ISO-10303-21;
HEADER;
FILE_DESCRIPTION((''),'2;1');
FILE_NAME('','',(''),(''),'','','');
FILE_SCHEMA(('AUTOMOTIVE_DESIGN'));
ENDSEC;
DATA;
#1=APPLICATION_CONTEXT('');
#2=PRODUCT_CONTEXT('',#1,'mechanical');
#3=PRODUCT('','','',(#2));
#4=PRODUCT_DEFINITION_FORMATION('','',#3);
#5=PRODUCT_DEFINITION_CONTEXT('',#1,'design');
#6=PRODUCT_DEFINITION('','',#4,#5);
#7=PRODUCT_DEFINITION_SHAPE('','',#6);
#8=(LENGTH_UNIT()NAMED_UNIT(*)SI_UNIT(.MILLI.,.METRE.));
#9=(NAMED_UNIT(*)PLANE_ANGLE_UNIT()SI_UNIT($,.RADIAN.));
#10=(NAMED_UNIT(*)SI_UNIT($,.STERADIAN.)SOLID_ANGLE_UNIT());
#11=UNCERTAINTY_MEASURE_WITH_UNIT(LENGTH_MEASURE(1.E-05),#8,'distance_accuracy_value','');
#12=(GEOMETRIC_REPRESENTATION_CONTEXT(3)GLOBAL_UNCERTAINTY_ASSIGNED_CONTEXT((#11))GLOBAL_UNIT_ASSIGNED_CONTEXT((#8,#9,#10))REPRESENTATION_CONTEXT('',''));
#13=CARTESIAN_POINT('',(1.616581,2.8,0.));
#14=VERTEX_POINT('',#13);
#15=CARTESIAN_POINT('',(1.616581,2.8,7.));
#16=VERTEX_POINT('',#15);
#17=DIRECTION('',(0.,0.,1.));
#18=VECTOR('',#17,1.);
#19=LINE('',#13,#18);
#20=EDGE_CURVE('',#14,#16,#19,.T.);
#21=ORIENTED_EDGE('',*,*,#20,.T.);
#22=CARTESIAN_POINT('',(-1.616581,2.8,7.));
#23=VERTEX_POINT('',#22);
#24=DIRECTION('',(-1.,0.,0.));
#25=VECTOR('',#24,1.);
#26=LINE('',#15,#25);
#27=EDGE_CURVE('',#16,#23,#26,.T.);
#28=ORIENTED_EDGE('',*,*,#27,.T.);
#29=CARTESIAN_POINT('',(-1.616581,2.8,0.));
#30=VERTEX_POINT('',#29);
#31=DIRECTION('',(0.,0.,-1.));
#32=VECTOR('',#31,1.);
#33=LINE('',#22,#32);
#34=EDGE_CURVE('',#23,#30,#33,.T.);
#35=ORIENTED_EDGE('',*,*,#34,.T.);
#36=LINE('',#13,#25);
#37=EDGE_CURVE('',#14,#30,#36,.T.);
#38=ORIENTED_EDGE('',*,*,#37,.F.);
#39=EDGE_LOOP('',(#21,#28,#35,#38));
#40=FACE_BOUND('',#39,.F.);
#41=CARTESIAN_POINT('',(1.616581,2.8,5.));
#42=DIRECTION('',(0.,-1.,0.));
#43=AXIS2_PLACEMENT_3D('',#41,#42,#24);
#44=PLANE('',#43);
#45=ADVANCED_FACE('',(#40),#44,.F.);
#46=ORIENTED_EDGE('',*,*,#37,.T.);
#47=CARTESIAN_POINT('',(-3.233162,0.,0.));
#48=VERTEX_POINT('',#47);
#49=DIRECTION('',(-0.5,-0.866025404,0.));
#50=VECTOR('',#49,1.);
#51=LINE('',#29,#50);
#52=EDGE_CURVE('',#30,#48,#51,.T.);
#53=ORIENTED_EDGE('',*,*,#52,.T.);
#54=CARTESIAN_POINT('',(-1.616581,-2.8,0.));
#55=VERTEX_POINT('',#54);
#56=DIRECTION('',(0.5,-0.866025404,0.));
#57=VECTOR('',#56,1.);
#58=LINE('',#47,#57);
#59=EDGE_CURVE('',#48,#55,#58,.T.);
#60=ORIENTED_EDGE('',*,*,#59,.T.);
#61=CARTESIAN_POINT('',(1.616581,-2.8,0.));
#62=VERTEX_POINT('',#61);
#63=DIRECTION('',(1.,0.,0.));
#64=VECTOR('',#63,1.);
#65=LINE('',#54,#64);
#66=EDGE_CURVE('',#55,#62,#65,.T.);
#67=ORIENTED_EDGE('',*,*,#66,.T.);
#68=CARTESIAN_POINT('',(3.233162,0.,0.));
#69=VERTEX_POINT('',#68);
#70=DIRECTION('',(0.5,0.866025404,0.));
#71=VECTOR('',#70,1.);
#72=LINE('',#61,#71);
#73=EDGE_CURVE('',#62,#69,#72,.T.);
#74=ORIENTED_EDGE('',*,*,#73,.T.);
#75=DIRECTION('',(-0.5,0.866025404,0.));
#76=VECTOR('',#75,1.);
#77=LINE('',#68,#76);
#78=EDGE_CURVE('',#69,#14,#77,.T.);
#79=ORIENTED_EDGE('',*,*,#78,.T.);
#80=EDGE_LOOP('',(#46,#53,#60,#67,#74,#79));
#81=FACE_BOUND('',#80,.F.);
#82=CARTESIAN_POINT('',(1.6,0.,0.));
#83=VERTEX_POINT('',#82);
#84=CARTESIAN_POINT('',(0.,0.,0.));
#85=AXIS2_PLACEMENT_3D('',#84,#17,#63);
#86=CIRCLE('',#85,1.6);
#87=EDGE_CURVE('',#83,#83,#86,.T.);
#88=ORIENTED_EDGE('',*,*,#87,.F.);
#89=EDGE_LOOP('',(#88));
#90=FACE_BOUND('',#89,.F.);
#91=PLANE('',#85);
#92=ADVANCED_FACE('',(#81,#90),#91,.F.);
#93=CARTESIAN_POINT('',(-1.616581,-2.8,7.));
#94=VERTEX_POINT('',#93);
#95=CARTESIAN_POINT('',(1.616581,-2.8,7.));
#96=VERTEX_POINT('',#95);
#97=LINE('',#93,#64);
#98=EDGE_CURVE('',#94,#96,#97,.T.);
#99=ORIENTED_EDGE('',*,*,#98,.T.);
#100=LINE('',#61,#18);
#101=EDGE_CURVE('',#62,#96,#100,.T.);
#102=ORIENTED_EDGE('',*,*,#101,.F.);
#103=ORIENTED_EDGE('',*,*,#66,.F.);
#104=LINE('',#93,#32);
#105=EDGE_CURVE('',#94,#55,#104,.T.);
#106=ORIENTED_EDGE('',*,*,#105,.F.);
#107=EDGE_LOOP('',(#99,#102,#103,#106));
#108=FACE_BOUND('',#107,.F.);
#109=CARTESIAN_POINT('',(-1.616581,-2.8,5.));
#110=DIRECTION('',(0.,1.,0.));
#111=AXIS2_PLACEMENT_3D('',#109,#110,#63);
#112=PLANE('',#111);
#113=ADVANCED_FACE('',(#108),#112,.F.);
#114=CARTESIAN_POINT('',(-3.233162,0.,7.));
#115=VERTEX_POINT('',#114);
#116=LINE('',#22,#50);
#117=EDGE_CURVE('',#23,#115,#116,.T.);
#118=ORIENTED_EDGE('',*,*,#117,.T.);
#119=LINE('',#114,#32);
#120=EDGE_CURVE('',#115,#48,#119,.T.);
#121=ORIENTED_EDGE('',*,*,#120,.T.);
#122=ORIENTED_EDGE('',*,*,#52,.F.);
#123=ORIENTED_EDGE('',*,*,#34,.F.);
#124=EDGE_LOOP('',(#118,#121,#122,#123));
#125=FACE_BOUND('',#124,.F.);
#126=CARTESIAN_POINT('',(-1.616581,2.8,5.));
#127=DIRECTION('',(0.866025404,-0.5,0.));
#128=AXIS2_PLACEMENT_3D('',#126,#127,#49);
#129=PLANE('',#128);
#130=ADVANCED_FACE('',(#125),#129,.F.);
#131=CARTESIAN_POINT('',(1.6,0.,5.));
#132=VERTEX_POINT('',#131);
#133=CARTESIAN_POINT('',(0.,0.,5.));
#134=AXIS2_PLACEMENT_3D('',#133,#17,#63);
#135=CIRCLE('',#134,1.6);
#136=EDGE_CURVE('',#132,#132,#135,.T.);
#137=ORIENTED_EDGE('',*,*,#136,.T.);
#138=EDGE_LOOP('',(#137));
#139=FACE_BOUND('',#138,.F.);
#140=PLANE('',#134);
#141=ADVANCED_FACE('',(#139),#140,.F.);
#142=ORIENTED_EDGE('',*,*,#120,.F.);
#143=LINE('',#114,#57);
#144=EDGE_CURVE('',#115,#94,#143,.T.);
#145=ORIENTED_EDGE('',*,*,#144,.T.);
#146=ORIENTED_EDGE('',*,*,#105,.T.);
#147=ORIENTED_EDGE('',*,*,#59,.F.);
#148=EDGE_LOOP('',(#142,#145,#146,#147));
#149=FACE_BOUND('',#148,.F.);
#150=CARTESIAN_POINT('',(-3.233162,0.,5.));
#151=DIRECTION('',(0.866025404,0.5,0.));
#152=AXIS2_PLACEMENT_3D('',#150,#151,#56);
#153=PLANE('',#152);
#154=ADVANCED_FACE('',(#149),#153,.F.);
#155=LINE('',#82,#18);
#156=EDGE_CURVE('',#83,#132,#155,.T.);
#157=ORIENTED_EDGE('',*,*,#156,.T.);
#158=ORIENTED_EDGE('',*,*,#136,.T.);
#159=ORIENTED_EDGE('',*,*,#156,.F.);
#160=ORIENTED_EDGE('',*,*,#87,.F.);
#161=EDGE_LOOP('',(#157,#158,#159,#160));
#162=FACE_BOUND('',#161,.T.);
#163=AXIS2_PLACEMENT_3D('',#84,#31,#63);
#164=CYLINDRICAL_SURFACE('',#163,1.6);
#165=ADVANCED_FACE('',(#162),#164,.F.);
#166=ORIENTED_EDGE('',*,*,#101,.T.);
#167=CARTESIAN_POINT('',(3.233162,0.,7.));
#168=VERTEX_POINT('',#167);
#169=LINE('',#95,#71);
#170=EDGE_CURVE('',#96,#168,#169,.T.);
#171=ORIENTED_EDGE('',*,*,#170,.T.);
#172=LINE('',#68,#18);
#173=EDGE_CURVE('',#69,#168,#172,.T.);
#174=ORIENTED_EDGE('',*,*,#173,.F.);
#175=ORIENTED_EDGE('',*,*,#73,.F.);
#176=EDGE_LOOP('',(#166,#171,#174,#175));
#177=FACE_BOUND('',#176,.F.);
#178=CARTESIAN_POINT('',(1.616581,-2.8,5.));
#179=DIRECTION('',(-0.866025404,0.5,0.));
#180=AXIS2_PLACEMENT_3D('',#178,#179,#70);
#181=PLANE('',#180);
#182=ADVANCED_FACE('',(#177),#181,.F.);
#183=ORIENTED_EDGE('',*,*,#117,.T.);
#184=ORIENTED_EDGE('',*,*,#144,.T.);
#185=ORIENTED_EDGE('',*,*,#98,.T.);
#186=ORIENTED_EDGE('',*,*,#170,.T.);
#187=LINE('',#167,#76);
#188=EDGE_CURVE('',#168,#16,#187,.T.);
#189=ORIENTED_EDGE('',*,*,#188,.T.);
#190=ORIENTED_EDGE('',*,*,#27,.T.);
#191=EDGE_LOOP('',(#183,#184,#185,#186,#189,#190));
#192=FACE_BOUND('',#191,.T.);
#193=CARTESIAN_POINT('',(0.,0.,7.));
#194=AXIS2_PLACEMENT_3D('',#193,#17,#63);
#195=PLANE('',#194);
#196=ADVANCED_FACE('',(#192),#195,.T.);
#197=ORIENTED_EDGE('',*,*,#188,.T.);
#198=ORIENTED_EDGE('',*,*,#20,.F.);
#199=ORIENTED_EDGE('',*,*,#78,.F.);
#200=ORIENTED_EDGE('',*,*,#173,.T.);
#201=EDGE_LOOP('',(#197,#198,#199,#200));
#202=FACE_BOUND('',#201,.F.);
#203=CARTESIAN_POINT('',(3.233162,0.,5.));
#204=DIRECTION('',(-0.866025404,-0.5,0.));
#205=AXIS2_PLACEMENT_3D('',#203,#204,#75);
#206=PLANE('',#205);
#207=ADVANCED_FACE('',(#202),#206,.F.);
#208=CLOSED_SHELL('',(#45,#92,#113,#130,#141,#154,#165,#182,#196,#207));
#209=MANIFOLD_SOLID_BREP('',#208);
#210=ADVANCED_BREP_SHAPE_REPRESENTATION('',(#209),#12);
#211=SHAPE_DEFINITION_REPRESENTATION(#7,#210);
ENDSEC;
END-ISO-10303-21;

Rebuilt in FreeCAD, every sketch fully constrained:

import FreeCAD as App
import Part
import Sketcher

V = App.Vector
Q = App.Units.Quantity


def add_polygon(sketch, points):
    """Adds a closed chain of lines whose ends are joined by coincident constraints."""
    first, n = sketch.GeometryCount, len(points)
    for a, b in zip(points, points[1:] + points[:1]):
        sketch.addGeometry(Part.LineSegment(App.Vector(*a, 0), App.Vector(*b, 0)), False)
    for i in range(n):
        sketch.addConstraint(Sketcher.Constraint("Coincident", first + i, 2, first + (i + 1) % n, 1))

doc = App.newDocument("Part")
body = doc.addObject("PartDesign::Body", "Body")

sketch1 = body.newObject("Sketcher::SketchObject", "Sketch")
sketch1.AttachmentSupport = (doc.getObject("XY_Plane"), [""])
sketch1.MapMode = "FlatFace"
add_polygon(sketch1, [(-1.6, -2.8), (1.6, -2.8), (3.2, 0), (1.6, 2.8), (-1.6, 2.8), (-3.2, 0)])
sketch1.addGeometry(Part.Circle(V(0, 0, 0), V(0, 0, 1), 1.6), False)
sketch1.addConstraint(Sketcher.Constraint("Horizontal", 0))
sketch1.addConstraint(Sketcher.Constraint("Horizontal", 3))
sketch1.addConstraint(Sketcher.Constraint("Coincident", 6, 3, -1, 1))
sketch1.addConstraint(Sketcher.Constraint("Symmetric", 0, 2, 3, 2, -1, 1))
sketch1.addConstraint(Sketcher.Constraint("Symmetric", 1, 2, 4, 2, -1, 1))
sketch1.addConstraint(Sketcher.Constraint("PointOnObject", 1, 2, -1))
sketch1.addConstraint(Sketcher.Constraint("Parallel", 2, 5))
sketch1.addConstraint(Sketcher.Constraint("Vertical", 0, 2, 2, 2))
sketch1.addConstraint(Sketcher.Constraint("Diameter", 6, 3.2))
sketch1.addConstraint(Sketcher.Constraint("Angle", 1, Q("60 deg")))
sketch1.addConstraint(Sketcher.Constraint("DistanceY", 0, 2, -1, 1, 2.8))
sketch1.addConstraint(Sketcher.Constraint("DistanceX", 0, 1, 0, 2, 3.233162))
pad1 = body.newObject("PartDesign::Pad", "Pad")
pad1.Profile = sketch1
pad1.Length = 5

sketch2 = body.newObject("Sketcher::SketchObject", "Sketch001")
sketch2.AttachmentSupport = (doc.getObject("XY_Plane"), [""])
sketch2.MapMode = "FlatFace"
sketch2.AttachmentOffset = App.Placement(V(0, 0, 5), App.Rotation())
add_polygon(sketch2, [(-1.6, -2.8), (1.6, -2.8), (3.2, 0), (1.6, 2.8), (-1.6, 2.8), (-3.2, 0)])
sketch2.addConstraint(Sketcher.Constraint("Horizontal", 0))
sketch2.addConstraint(Sketcher.Constraint("Horizontal", 3))
sketch2.addConstraint(Sketcher.Constraint("Symmetric", 0, 2, 3, 2, -1, 1))
sketch2.addConstraint(Sketcher.Constraint("Symmetric", 1, 2, 4, 2, -1, 1))
sketch2.addConstraint(Sketcher.Constraint("PointOnObject", 1, 2, -1))
sketch2.addConstraint(Sketcher.Constraint("Parallel", 2, 5))
sketch2.addConstraint(Sketcher.Constraint("Vertical", 0, 2, 2, 2))
sketch2.addConstraint(Sketcher.Constraint("Angle", 1, Q("60 deg")))
sketch2.addConstraint(Sketcher.Constraint("DistanceY", 0, 2, -1, 1, 2.8))
sketch2.addConstraint(Sketcher.Constraint("DistanceX", 0, 1, 0, 2, 3.233162))
pad2 = body.newObject("PartDesign::Pad", "Pad001")
pad2.Profile = sketch2
pad2.Length = 2

doc.recompute()
